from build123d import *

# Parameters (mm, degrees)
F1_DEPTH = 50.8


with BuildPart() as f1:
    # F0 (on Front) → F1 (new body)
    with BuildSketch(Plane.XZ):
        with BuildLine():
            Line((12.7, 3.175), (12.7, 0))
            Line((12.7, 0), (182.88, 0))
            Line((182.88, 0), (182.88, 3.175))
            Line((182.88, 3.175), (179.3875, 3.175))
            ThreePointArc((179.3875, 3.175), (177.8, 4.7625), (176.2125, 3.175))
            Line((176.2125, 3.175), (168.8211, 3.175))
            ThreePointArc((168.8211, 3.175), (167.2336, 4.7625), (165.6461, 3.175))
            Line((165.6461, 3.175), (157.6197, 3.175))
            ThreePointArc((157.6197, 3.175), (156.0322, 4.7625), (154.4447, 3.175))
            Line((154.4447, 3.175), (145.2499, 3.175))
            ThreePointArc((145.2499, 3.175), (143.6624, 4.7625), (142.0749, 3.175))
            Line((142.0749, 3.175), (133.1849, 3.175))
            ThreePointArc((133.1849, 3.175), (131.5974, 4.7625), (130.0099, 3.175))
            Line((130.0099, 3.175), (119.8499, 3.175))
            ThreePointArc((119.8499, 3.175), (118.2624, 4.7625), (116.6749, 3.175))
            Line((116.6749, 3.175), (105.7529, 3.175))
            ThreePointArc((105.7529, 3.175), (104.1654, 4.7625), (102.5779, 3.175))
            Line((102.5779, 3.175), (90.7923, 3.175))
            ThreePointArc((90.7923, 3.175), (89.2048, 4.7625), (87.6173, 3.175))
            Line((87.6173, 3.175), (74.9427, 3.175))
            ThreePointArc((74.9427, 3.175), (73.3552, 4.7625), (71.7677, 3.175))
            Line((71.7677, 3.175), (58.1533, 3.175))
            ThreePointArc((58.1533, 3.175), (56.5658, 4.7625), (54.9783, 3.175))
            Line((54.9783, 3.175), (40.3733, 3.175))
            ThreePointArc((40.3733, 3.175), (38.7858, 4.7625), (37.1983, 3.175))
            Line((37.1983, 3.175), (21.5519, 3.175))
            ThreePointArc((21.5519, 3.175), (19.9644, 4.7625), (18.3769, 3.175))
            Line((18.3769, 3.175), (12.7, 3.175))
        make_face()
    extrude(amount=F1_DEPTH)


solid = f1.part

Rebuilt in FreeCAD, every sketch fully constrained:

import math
import FreeCAD as App
import Part
import Sketcher

V = App.Vector
Q = App.Units.Quantity

doc = App.newDocument("Part")
body = doc.addObject("PartDesign::Body", "Body")

# Sketch on XZ plane
sketch1 = body.newObject("Sketcher::SketchObject", "Sketch")
sketch1.AttachmentSupport = (doc.getObject("XZ_Plane"), [""])
sketch1.MapMode = "FlatFace"
sketch1.addGeometry([
    Part.LineSegment(V(12.7, 3.2, 0), V(12.7, 0, 0)),  # 0
    Part.LineSegment(V(12.7, 0, 0), V(182.9, 0, 0)),  # 1
    Part.LineSegment(V(182.9, 0, 0), V(182.9, 3.2, 0)),  # 2
    Part.LineSegment(V(182.9, 3.2, 0), V(179.4, 3.2, 0)),  # 3
    Part.ArcOfCircle(Part.Circle(V(177.8, 3.2, 0), V(0, 0, 1), 1.6), math.radians(0), math.radians(180)),  # 4
    Part.LineSegment(V(176.2, 3.2, 0), V(168.8, 3.2, 0)),  # 5
    Part.ArcOfCircle(Part.Circle(V(167.2, 3.2, 0), V(0, 0, 1), 1.6), math.radians(0), math.radians(180)),  # 6
    Part.LineSegment(V(165.6, 3.2, 0), V(157.6, 3.2, 0)),  # 7
    Part.ArcOfCircle(Part.Circle(V(156, 3.2, 0), V(0, 0, 1), 1.6), math.radians(0), math.radians(180)),  # 8
    Part.LineSegment(V(154.4, 3.2, 0), V(145.2, 3.2, 0)),  # 9
    Part.ArcOfCircle(Part.Circle(V(143.7, 3.2, 0), V(0, 0, 1), 1.6), math.radians(0), math.radians(180)),  # 10
    Part.LineSegment(V(142.1, 3.2, 0), V(133.2, 3.2, 0)),  # 11
    Part.ArcOfCircle(Part.Circle(V(131.6, 3.2, 0), V(0, 0, 1), 1.6), math.radians(0), math.radians(180)),  # 12
    Part.LineSegment(V(130, 3.2, 0), V(119.8, 3.2, 0)),  # 13
    Part.ArcOfCircle(Part.Circle(V(118.3, 3.2, 0), V(0, 0, 1), 1.6), math.radians(0), math.radians(180)),  # 14
    Part.LineSegment(V(116.7, 3.2, 0), V(105.8, 3.2, 0)),  # 15
    Part.ArcOfCircle(Part.Circle(V(104.2, 3.2, 0), V(0, 0, 1), 1.6), math.radians(0), math.radians(180)),  # 16
    Part.LineSegment(V(102.6, 3.2, 0), V(90.8, 3.2, 0)),  # 17
    Part.ArcOfCircle(Part.Circle(V(89.2, 3.2, 0), V(0, 0, 1), 1.6), math.radians(0), math.radians(180)),  # 18
    Part.LineSegment(V(87.6, 3.2, 0), V(74.9, 3.2, 0)),  # 19
    Part.ArcOfCircle(Part.Circle(V(73.4, 3.2, 0), V(0, 0, 1), 1.6), math.radians(0), math.radians(180)),  # 20
    Part.LineSegment(V(71.8, 3.2, 0), V(58.2, 3.2, 0)),  # 21
    Part.ArcOfCircle(Part.Circle(V(56.6, 3.2, 0), V(0, 0, 1), 1.6), math.radians(0), math.radians(180)),  # 22
    Part.LineSegment(V(55, 3.2, 0), V(40.4, 3.2, 0)),  # 23
    Part.ArcOfCircle(Part.Circle(V(38.8, 3.2, 0), V(0, 0, 1), 1.6), math.radians(0), math.radians(180)),  # 24
    Part.LineSegment(V(37.2, 3.2, 0), V(21.6, 3.2, 0)),  # 25
    Part.ArcOfCircle(Part.Circle(V(20, 3.2, 0), V(0, 0, 1), 1.6), math.radians(0), math.radians(180)),  # 26
    Part.LineSegment(V(18.4, 3.2, 0), V(12.7, 3.2, 0)),  # 27
], False)
sketch1.addConstraint([
    Sketcher.Constraint("Coincident", 0, 2, 1, 1),
    Sketcher.Constraint("Coincident", 1, 2, 2, 1),
    Sketcher.Constraint("Coincident", 2, 2, 3, 1),
    Sketcher.Constraint("Coincident", 3, 2, 4, 1),
    Sketcher.Constraint("Coincident", 4, 2, 5, 1),
    Sketcher.Constraint("Coincident", 5, 2, 6, 1),
    Sketcher.Constraint("Coincident", 6, 2, 7, 1),
    Sketcher.Constraint("Coincident", 7, 2, 8, 1),
    Sketcher.Constraint("Coincident", 8, 2, 9, 1),
    Sketcher.Constraint("Coincident", 9, 2, 10, 1),
    Sketcher.Constraint("Coincident", 10, 2, 11, 1),
    Sketcher.Constraint("Coincident", 11, 2, 12, 1),
    Sketcher.Constraint("Coincident", 12, 2, 13, 1),
    Sketcher.Constraint("Coincident", 13, 2, 14, 1),
    Sketcher.Constraint("Coincident", 14, 2, 15, 1),
    Sketcher.Constraint("Coincident", 15, 2, 16, 1),
    Sketcher.Constraint("Coincident", 16, 2, 17, 1),
    Sketcher.Constraint("Coincident", 17, 2, 18, 1),
    Sketcher.Constraint("Coincident", 18, 2, 19, 1),
    Sketcher.Constraint("Coincident", 19, 2, 20, 1),
    Sketcher.Constraint("Coincident", 20, 2, 21, 1),
    Sketcher.Constraint("Coincident", 21, 2, 22, 1),
    Sketcher.Constraint("Coincident", 22, 2, 23, 1),
    Sketcher.Constraint("Coincident", 23, 2, 24, 1),
    Sketcher.Constraint("Coincident", 24, 2, 25, 1),
    Sketcher.Constraint("Coincident", 25, 2, 26, 1),
    Sketcher.Constraint("Coincident", 26, 2, 27, 1),
    Sketcher.Constraint("Coincident", 27, 2, 0, 1),
    Sketcher.Constraint("Vertical", 0),
    Sketcher.Constraint("Horizontal", 1),
    Sketcher.Constraint("Vertical", 2),
    Sketcher.Constraint("Horizontal", 3),
    Sketcher.Constraint("Horizontal", 5),
    Sketcher.Constraint("Horizontal", 7),
    Sketcher.Constraint("Horizontal", 9),
    Sketcher.Constraint("Horizontal", 11),
    Sketcher.Constraint("Horizontal", 13),
    Sketcher.Constraint("Horizontal", 15),
    Sketcher.Constraint("Horizontal", 17),
    Sketcher.Constraint("Horizontal", 19),
    Sketcher.Constraint("Horizontal", 21),
    Sketcher.Constraint("Horizontal", 23),
    Sketcher.Constraint("Horizontal", 25),
    Sketcher.Constraint("Horizontal", 27),
    Sketcher.Constraint("Equal", 4, 6),
    Sketcher.Constraint("Equal", 6, 8),
    Sketcher.Constraint("Equal", 8, 10),
    Sketcher.Constraint("Equal", 10, 12),
    Sketcher.Constraint("Equal", 12, 14),
    Sketcher.Constraint("Equal", 14, 16),
    Sketcher.Constraint("Equal", 16, 18),
    Sketcher.Constraint("Equal", 18, 20),
    Sketcher.Constraint("Equal", 20, 22),
    Sketcher.Constraint("Equal", 22, 24),
    Sketcher.Constraint("Equal", 24, 26),
    Sketcher.Constraint("PointOnObject", 0, 2, -1),
    Sketcher.Constraint("Horizontal", 4, 3, 6, 3),
    Sketcher.Constraint("Horizontal", 6, 3, 8, 3),
    Sketcher.Constraint("Horizontal", 8, 3, 10, 3),
    Sketcher.Constraint("Horizontal", 10, 3, 12, 3),
    Sketcher.Constraint("Horizontal", 12, 3, 14, 3),
    Sketcher.Constraint("Horizontal", 14, 3, 16, 3),
    Sketcher.Constraint("Horizontal", 16, 3, 18, 3),
    Sketcher.Constraint("Horizontal", 18, 3, 20, 3),
    Sketcher.Constraint("Horizontal", 20, 3, 22, 3),
    Sketcher.Constraint("Horizontal", 22, 3, 24, 3),
    Sketcher.Constraint("Horizontal", 24, 3, 26, 3),
    Sketcher.Constraint("Horizontal", 26, 3, 2, 2),
    Sketcher.Constraint("Horizontal", 3, 2, 4, 2),
    Sketcher.Constraint("Horizontal", 5, 2, 6, 2),
    Sketcher.Constraint("Horizontal", 7, 2, 8, 2),
    Sketcher.Constraint("Horizontal", 9, 2, 10, 2),
    Sketcher.Constraint("Horizontal", 11, 2, 12, 2),
    Sketcher.Constraint("Horizontal", 13, 2, 14, 2),
    Sketcher.Constraint("Horizontal", 15, 2, 16, 2),
    Sketcher.Constraint("Horizontal", 17, 2, 18, 2),
    Sketcher.Constraint("Horizontal", 19, 2, 20, 2),
    Sketcher.Constraint("Horizontal", 21, 2, 22, 2),
    Sketcher.Constraint("Horizontal", 23, 2, 24, 2),
    Sketcher.Constraint("Horizontal", 25, 2, 26, 2),
    Sketcher.Constraint("DistanceX", 1, 1, 1, 2, Q("6.7 in")),
    Sketcher.Constraint("DistanceX", 13, 2, 13, 1, Q("0.4 in")),
    Sketcher.Constraint("DistanceX", -1, 1, 4, 3, Q("7 in")),
    Sketcher.Constraint("Radius", 4, Q("0.0625 in")),
    Sketcher.Constraint("DistanceX", 14, 3, 10, 3, Q("1 in")),
    Sketcher.Constraint("DistanceX", 15, 2, 15, 1, Q("0.43 in")),
    Sketcher.Constraint("DistanceX", -1, 1, 0, 2, Q("0.5 in")),
    Sketcher.Constraint("DistanceX", 24, 3, 22, 3, Q("0.7 in")),
    Sketcher.Constraint("DistanceX", 5, 2, 5, 1, Q("0.291 in")),
    Sketcher.Constraint("DistanceX", 7, 2, 7, 1, Q("0.316 in")),
    Sketcher.Constraint("DistanceX", 9, 2, 9, 1, Q("0.362 in")),
    Sketcher.Constraint("DistanceX", 17, 2, 17, 1, Q("0.464 in")),
    Sketcher.Constraint("DistanceX", 19, 2, 19, 1, Q("0.499 in")),
    Sketcher.Constraint("DistanceX", 21, 2, 21, 1, Q("0.536 in")),
    Sketcher.Constraint("DistanceX", 25, 2, 25, 1, Q("0.616 in")),
    Sketcher.Constraint("DistanceY", 0, 2, 0, 1, Q("0.125 in")),
])
pad1 = body.newObject("PartDesign::Pad", "Pad")
pad1.Profile = sketch1
pad1.Length = Q("2 in")

doc.recompute()
